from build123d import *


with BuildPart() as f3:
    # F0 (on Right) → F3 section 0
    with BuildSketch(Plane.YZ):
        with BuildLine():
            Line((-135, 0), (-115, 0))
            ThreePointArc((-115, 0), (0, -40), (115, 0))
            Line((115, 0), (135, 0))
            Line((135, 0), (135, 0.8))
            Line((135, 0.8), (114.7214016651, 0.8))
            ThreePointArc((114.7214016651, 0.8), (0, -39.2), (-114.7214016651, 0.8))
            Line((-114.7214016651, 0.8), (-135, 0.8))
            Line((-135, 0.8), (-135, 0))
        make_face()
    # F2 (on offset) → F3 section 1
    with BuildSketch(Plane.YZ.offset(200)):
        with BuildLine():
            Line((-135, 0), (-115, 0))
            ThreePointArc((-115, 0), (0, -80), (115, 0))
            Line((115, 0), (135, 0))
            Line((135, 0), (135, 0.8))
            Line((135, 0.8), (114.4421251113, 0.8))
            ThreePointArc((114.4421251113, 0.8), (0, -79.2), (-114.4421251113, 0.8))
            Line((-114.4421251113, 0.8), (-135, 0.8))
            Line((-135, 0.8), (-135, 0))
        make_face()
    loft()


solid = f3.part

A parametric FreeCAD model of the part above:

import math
import FreeCAD as App
import Part
import Sketcher

doc = App.newDocument("Part")
body = doc.addObject("PartDesign::Body", "Body")

# Sketch on YZ plane
sketch1 = body.newObject("Sketcher::SketchObject", "Sketch")
sketch1.AttachmentSupport = (doc.getObject("YZ_Plane"), [""])
sketch1.MapMode = "FlatFace"
sketch1.addGeometry([
    Part.LineSegment(App.Vector(-135, 0, 0), App.Vector(-115, 0, 0)),  # 0
    Part.ArcOfCircle(Part.Circle(App.Vector(0, 145.3, 0), App.Vector(0, 0, 1), 185.3), math.radians(-128), math.radians(-52)),  # 1
    Part.LineSegment(App.Vector(115, 0, 0), App.Vector(135, 0, 0)),  # 2
    Part.LineSegment(App.Vector(135, 0, 0), App.Vector(135, 0.8, 0)),  # 3
    Part.LineSegment(App.Vector(135, 0.8, 0), App.Vector(114.7, 0.8, 0)),  # 4
    Part.ArcOfCircle(Part.Circle(App.Vector(0, 145.3, 0), App.Vector(0, 0, 1), 184.5), math.radians(-128), math.radians(-52)),  # 5
    Part.LineSegment(App.Vector(-114.7, 0.8, 0), App.Vector(-135, 0.8, 0)),  # 6
    Part.LineSegment(App.Vector(-135, 0.8, 0), App.Vector(-135, 0, 0)),  # 7
], False)
sketch1.addConstraint([
    Sketcher.Constraint("Coincident", 0, 2, 1, 1),
    Sketcher.Constraint("Coincident", 1, 2, 2, 1),
    Sketcher.Constraint("Coincident", 2, 2, 3, 1),
    Sketcher.Constraint("Coincident", 3, 2, 4, 1),
    Sketcher.Constraint("Coincident", 4, 2, 5, 2),
    Sketcher.Constraint("Coincident", 5, 1, 6, 1),
    Sketcher.Constraint("Coincident", 6, 2, 7, 1),
    Sketcher.Constraint("Coincident", 7, 2, 0, 1),
    Sketcher.Constraint("Horizontal", 0),
    Sketcher.Constraint("Horizontal", 2),
    Sketcher.Constraint("Vertical", 3),
    Sketcher.Constraint("Horizontal", 4),
    Sketcher.Constraint("Horizontal", 6),
    Sketcher.Constraint("Vertical", 7),
    Sketcher.Constraint("Coincident", 5, 3, 1, 3),
    Sketcher.Constraint("Symmetric", 0, 2, 1, 2, -1, 1),
    Sketcher.Constraint("Symmetric", 4, 2, 5, 1, -2),
    Sketcher.Constraint("Equal", 0, 2),
    Sketcher.Constraint("DistanceX", 0, 1, 0, 2, 20.0),
    Sketcher.Constraint("DistanceY", 3, 1, 3, 2, 0.8),
    Sketcher.Constraint("DistanceX", 0, 2, -1, 1, 115.0),
    Sketcher.Constraint("Radius", 1, 185.3125),
    Sketcher.Constraint("Radius", 5, 184.5125),
])

# Sketch on YZ plane
sketch2 = body.newObject("Sketcher::SketchObject", "Sketch001")
sketch2.AttachmentSupport = (doc.getObject("YZ_Plane"), [""])
sketch2.MapMode = "FlatFace"
sketch2.AttachmentOffset = App.Placement(App.Vector(0, 0, 200), App.Rotation())
sketch2.addGeometry([
    Part.LineSegment(App.Vector(-135, 0, 0), App.Vector(-115, 0, 0)),  # 0
    Part.ArcOfCircle(Part.Circle(App.Vector(0, 42.7, 0), App.Vector(0, 0, 1), 122.7), math.radians(-160), math.radians(-20)),  # 1
    Part.LineSegment(App.Vector(115, 0, 0), App.Vector(135, 0, 0)),  # 2
    Part.LineSegment(App.Vector(135, 0, 0), App.Vector(135, 0.8, 0)),  # 3
    Part.LineSegment(App.Vector(135, 0.8, 0), App.Vector(114.4, 0.8, 0)),  # 4
    Part.ArcOfCircle(Part.Circle(App.Vector(0, 42.7, 0), App.Vector(0, 0, 1), 121.9), math.radians(-160), math.radians(-20)),  # 5
    Part.LineSegment(App.Vector(-114.4, 0.8, 0), App.Vector(-135, 0.8, 0)),  # 6
    Part.LineSegment(App.Vector(-135, 0.8, 0), App.Vector(-135, 0, 0)),  # 7
], False)
sketch2.addConstraint([
    Sketcher.Constraint("Coincident", 0, 2, 1, 1),
    Sketcher.Constraint("Coincident", 1, 2, 2, 1),
    Sketcher.Constraint("Coincident", 2, 2, 3, 1),
    Sketcher.Constraint("Coincident", 3, 2, 4, 1),
    Sketcher.Constraint("Coincident", 4, 2, 5, 2),
    Sketcher.Constraint("Coincident", 5, 1, 6, 1),
    Sketcher.Constraint("Coincident", 6, 2, 7, 1),
    Sketcher.Constraint("Coincident", 7, 2, 0, 1),
    Sketcher.Constraint("Horizontal", 0),
    Sketcher.Constraint("Horizontal", 2),
    Sketcher.Constraint("Vertical", 3),
    Sketcher.Constraint("Horizontal", 4),
    Sketcher.Constraint("Horizontal", 6),
    Sketcher.Constraint("Vertical", 7),
    Sketcher.Constraint("Coincident", 5, 3, 1, 3),
    Sketcher.Constraint("Symmetric", 0, 2, 1, 2, -1, 1),
    Sketcher.Constraint("Symmetric", 4, 2, 5, 1, -2),
    Sketcher.Constraint("Equal", 0, 2),
    Sketcher.Constraint("DistanceX", 0, 1, 0, 2, 20.0),
    Sketcher.Constraint("DistanceY", 3, 1, 3, 2, 0.8),
    Sketcher.Constraint("DistanceX", 0, 2, -1, 1, 115.0),
    Sketcher.Constraint("Radius", 1, 122.65625),
    Sketcher.Constraint("Radius", 5, 121.85625),
])

additiveloft = body.newObject("PartDesign::AdditiveLoft", "AdditiveLoft")
additiveloft.Profile = sketch1
additiveloft.Sections = [sketch2]

doc.recompute()
